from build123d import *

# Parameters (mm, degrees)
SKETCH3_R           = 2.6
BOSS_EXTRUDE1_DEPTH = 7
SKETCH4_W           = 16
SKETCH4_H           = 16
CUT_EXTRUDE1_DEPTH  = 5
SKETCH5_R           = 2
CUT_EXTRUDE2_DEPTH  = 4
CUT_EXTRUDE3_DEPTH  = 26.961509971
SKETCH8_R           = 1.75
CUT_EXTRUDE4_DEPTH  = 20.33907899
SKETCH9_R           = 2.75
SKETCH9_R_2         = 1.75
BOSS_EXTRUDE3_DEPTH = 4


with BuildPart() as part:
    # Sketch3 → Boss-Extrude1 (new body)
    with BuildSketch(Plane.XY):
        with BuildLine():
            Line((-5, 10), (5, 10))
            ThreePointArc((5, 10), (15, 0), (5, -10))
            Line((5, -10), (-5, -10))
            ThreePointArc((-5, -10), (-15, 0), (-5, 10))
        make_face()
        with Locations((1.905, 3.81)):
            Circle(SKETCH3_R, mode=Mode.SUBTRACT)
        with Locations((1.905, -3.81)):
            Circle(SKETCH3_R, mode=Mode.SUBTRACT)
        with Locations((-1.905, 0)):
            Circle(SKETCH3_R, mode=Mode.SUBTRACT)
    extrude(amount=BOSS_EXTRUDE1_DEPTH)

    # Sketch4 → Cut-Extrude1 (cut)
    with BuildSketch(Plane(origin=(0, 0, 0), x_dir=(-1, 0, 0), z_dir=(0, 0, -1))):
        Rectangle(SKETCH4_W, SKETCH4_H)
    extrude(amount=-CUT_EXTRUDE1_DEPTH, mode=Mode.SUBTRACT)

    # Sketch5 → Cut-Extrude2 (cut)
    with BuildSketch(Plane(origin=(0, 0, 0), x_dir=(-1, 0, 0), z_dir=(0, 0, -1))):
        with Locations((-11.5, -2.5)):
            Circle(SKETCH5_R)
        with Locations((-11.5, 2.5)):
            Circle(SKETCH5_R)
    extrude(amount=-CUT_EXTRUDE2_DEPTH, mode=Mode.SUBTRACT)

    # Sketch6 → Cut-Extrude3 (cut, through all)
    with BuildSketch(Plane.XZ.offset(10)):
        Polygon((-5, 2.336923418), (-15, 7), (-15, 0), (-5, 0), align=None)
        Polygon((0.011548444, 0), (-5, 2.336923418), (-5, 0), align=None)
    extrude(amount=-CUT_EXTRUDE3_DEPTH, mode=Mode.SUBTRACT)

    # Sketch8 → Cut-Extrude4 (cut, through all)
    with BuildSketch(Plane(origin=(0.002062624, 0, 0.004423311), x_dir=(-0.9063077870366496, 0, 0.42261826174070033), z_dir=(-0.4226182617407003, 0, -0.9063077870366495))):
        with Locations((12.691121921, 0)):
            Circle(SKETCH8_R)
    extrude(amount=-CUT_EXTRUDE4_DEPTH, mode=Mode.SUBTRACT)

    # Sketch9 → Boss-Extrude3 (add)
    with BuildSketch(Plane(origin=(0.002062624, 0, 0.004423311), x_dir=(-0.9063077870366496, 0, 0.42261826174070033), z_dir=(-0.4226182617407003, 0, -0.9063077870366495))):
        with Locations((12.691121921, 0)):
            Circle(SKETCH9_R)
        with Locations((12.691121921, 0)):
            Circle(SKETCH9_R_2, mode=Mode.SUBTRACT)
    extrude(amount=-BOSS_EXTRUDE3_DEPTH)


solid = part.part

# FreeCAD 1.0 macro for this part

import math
import FreeCAD as App
import Part
import Sketcher
Q = App.Units.Quantity

doc = App.newDocument("Part")
body = doc.addObject("PartDesign::Body", "Body")

# Sketch on XY plane
sketch1 = body.newObject("Sketcher::SketchObject", "Sketch")
sketch1.AttachmentSupport = (doc.getObject("XY_Plane"), [""])
sketch1.MapMode = "FlatFace"
sketch1.addGeometry([
    Part.LineSegment(App.Vector(5, 10, 0), App.Vector(-5, 10, 0)),  # 0
    Part.ArcOfCircle(Part.Circle(App.Vector(-5, 0, 0), App.Vector(0, 0, 1), 10), math.radians(90), math.radians(270)),  # 1
    Part.LineSegment(App.Vector(-5, -10, 0), App.Vector(5, -10, 0)),  # 2
    Part.ArcOfCircle(Part.Circle(App.Vector(5, 0, 0), App.Vector(0, 0, 1), 10), math.radians(-90), math.radians(90)),  # 3
    Part.Circle(App.Vector(1.9, -3.8, 0), App.Vector(0, 0, 1), 2.6),  # 4
    Part.Circle(App.Vector(1.9, 3.8, 0), App.Vector(0, 0, 1), 2.6),  # 5
    Part.Circle(App.Vector(-1.9, 0, 0), App.Vector(0, 0, 1), 2.6),  # 6
], False)
sketch1.addConstraint([
    Sketcher.Constraint("Tangent", 0, 2, 1, 1),
    Sketcher.Constraint("Tangent", 1, 2, 2, 1),
    Sketcher.Constraint("Tangent", 2, 2, 3, 1),
    Sketcher.Constraint("Tangent", 3, 2, 0, 1),
    Sketcher.Constraint("Horizontal", 0),
    Sketcher.Constraint("Horizontal", 2),
    Sketcher.Constraint("Equal", 4, 5),
    Sketcher.Constraint("Equal", 5, 6),
    Sketcher.Constraint("Symmetric", 1, 3, 3, 3, -1, 1),
    Sketcher.Constraint("Symmetric", 4, 3, 5, 3, -1),
    Sketcher.Constraint("PointOnObject", 6, 3, -1),
    Sketcher.Constraint("Radius", 1, Q("10 mm")),
    Sketcher.Constraint("Diameter", 4, Q("5.2 mm")),
    Sketcher.Constraint("DistanceX", 0, 2, 0, 1, Q("10 mm")),
    Sketcher.Constraint("DistanceY", 4, 3, -1, 1, Q("3.81 mm")),
    Sketcher.Constraint("DistanceX", 6, 3, 4, 3, Q("3.81 mm")),
    Sketcher.Constraint("DistanceX", -1, 1, 4, 3, Q("1.905 mm")),
])
pad1 = body.newObject("PartDesign::Pad", "Pad")
pad1.Profile = sketch1
pad1.Length = 7

# Sketch on XY plane
sketch2 = body.newObject("Sketcher::SketchObject", "Sketch001")
sketch2.AttachmentSupport = (doc.getObject("XY_Plane"), [""])
sketch2.MapMode = "FlatFace"
sketch2.addGeometry([
    Part.LineSegment(App.Vector(8, 8, 0), App.Vector(8, -8, 0)),
    Part.LineSegment(App.Vector(8, -8, 0), App.Vector(-8, -8, 0)),
    Part.LineSegment(App.Vector(-8, -8, 0), App.Vector(-8, 8, 0)),
    Part.LineSegment(App.Vector(-8, 8, 0), App.Vector(8, 8, 0)),
], False)
sketch2.addConstraint([
    Sketcher.Constraint("Coincident", 0, 2, 1, 1),
    Sketcher.Constraint("Coincident", 1, 2, 2, 1),
    Sketcher.Constraint("Coincident", 2, 2, 3, 1),
    Sketcher.Constraint("Coincident", 3, 2, 0, 1),
    Sketcher.Constraint("Vertical", 0),
    Sketcher.Constraint("Horizontal", 1),
    Sketcher.Constraint("Vertical", 2),
    Sketcher.Constraint("Horizontal", 3),
    Sketcher.Constraint("Symmetric", 0, 2, 2, 2, -1, 1),
    Sketcher.Constraint("Equal", 3, 0),
    Sketcher.Constraint("DistanceX", 1, 2, 1, 1, Q("16 mm")),
])
pocket1 = body.newObject("PartDesign::Pocket", "Pocket")
pocket1.Profile = sketch2
pocket1.Length = 5
pocket1.Reversed = True

# Sketch on XY plane
sketch3 = body.newObject("Sketcher::SketchObject", "Sketch002")
sketch3.AttachmentSupport = (doc.getObject("XY_Plane"), [""])
sketch3.MapMode = "FlatFace"
sketch3.addGeometry([
    Part.Circle(App.Vector(11.5, -2.5, 0), App.Vector(0, 0, 1), 2),
    Part.Circle(App.Vector(11.5, 2.5, 0), App.Vector(0, 0, 1), 2),
], False)
sketch3.addConstraint([
    Sketcher.Constraint("Equal", 0, 1),
    Sketcher.Constraint("Symmetric", 0, 3, 1, 3, -1),
    Sketcher.Constraint("Diameter", 0, Q("4 mm")),
    Sketcher.Constraint("DistanceY", 0, 3, 1, 3, Q("5 mm")),
    Sketcher.Constraint("DistanceX", -1, 1, 0, 3, Q("11.5 mm")),
])
pocket2 = body.newObject("PartDesign::Pocket", "Pocket001")
pocket2.Profile = sketch3
pocket2.Length = 4
pocket2.Reversed = True

# Sketch on XZ plane
sketch4 = body.newObject("Sketcher::SketchObject", "Sketch003")
sketch4.AttachmentSupport = (doc.getObject("XZ_Plane"), [""])
sketch4.MapMode = "FlatFace"
sketch4.AttachmentOffset = App.Placement(App.Vector(0, 0, 10), App.Rotation())
sketch4.addGeometry([
    Part.LineSegment(App.Vector(-5, 2, 0), App.Vector(-15, 7, 0)),
    Part.LineSegment(App.Vector(-15, 7, 0), App.Vector(-15, 0, 0)),
    Part.LineSegment(App.Vector(-15, 0, 0), App.Vector(0, 0, 0)),
    Part.LineSegment(App.Vector(0, 0, 0), App.Vector(-5, 2, 0)),
], False)
sketch4.addConstraint([
    Sketcher.Constraint("Coincident", 0, 2, 1, 1),
    Sketcher.Constraint("Coincident", 1, 2, 2, 1),
    Sketcher.Constraint("Coincident", 2, 2, 3, 1),
    Sketcher.Constraint("Coincident", 3, 2, 0, 1),
    Sketcher.Constraint("Vertical", 1),
    Sketcher.Constraint("Horizontal", 2),
    Sketcher.Constraint("PointOnObject", 1, 2, -1),
    Sketcher.Constraint("Parallel", 0, 3),
    Sketcher.Constraint("DistanceY", 1, 2, 1, 1, Q("7 mm")),
    Sketcher.Constraint("Angle", 0, Q("155 deg")),
    Sketcher.Constraint("DistanceX", 0, 2, -1, 1, Q("15 mm")),
    Sketcher.Constraint("DistanceX", 3, 2, -1, 1, Q("5 mm")),
])
pocket3 = body.newObject("PartDesign::Pocket", "Pocket002")
pocket3.Profile = sketch4
pocket3.Type = "ThroughAll"

# Sketch on an angled plane
sketch5 = body.newObject("Sketcher::SketchObject", "Sketch004")
sketch5.Placement = App.Placement(App.Vector(0.002063, 0, 0.004423), App.Rotation(App.Vector(-0.906307787, 0, 0.422618262), App.Vector(0, 1, 0), App.Vector(-0.422618262, 0, -0.906307787), "ZXY"))
sketch5.addGeometry(Part.Circle(App.Vector(12.7, 0, 0), App.Vector(0, 0, 1), 1.8), False)
sketch5.addConstraint([
    Sketcher.Constraint("PointOnObject", 0, 3, -1),
    Sketcher.Constraint("Diameter", 0, Q("3.5 mm")),
    Sketcher.Constraint("DistanceX", -1, 1, 0, 3, Q("12.691122 mm")),
])
pocket4 = body.newObject("PartDesign::Pocket", "Pocket003")
pocket4.Profile = sketch5
pocket4.Type = "ThroughAll"

# Sketch on an angled plane
sketch6 = body.newObject("Sketcher::SketchObject", "Sketch005")
sketch6.Placement = App.Placement(App.Vector(0.002063, 0, 0.004423), App.Rotation(App.Vector(-0.906307787, 0, 0.422618262), App.Vector(0, 1, 0), App.Vector(-0.422618262, 0, -0.906307787), "ZXY"))
sketch6.addGeometry([
    Part.Circle(App.Vector(12.7, 0, 0), App.Vector(0, 0, 1), 2.8),
    Part.Circle(App.Vector(12.7, 0, 0), App.Vector(0, 0, 1), 1.8),
], False)
sketch6.addConstraint([
    Sketcher.Constraint("Coincident", 1, 3, 0, 3),
    Sketcher.Constraint("PointOnObject", 0, 3, -1),
    Sketcher.Constraint("Diameter", 0, Q("5.5 mm")),
    Sketcher.Constraint("Diameter", 1, Q("3.5 mm")),
    Sketcher.Constraint("DistanceX", -1, 1, 0, 3, Q("12.691122 mm")),
])
pad2 = body.newObject("PartDesign::Pad", "Pad001")
pad2.Profile = sketch6
pad2.Length = 4
pad2.Reversed = True

doc.recompute()
